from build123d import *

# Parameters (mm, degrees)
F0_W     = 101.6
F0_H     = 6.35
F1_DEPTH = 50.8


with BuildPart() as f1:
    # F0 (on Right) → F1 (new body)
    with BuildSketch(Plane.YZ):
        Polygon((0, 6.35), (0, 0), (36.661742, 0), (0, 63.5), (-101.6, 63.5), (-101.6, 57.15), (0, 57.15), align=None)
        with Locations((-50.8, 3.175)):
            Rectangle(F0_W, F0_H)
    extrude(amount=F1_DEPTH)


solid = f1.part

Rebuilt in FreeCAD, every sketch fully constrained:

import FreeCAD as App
import Part
import Sketcher
Q = App.Units.Quantity

doc = App.newDocument("Part")
body = doc.addObject("PartDesign::Body", "Body")

sketch1 = doc.addObject("Sketcher::SketchObject", "Sketch")
body.addObject(sketch1)
sketch1.AttachmentSupport = (doc.YZ_Plane, [""])
sketch1.MapMode = "FlatFace"
sketch1.addGeometry(Part.LineSegment(App.Vector(36.661742, 0, 0), App.Vector(0, 63.5, 0)), False)
sketch1.addGeometry(Part.LineSegment(App.Vector(0, 63.5, 0), App.Vector(-101.6, 63.5, 0)), False)
sketch1.addGeometry(Part.LineSegment(App.Vector(-101.6, 63.5, 0), App.Vector(-101.6, 57.15, 0)), False)
sketch1.addGeometry(Part.LineSegment(App.Vector(-101.6, 57.15, 0), App.Vector(0, 57.15, 0)), False)
sketch1.addGeometry(Part.LineSegment(App.Vector(0, 57.15, 0), App.Vector(0, 6.35, 0)), False)
sketch1.addGeometry(Part.LineSegment(App.Vector(0, 6.35, 0), App.Vector(-101.6, 6.35, 0)), False)
sketch1.addGeometry(Part.LineSegment(App.Vector(-101.6, 6.35, 0), App.Vector(-101.6, 0, 0)), False)
sketch1.addGeometry(Part.LineSegment(App.Vector(-101.6, 0, 0), App.Vector(36.661742, 0, 0)), False)
sketch1.addConstraint(Sketcher.Constraint("Coincident", 0, 2, 1, 1))
sketch1.addConstraint(Sketcher.Constraint("Coincident", 1, 2, 2, 1))
sketch1.addConstraint(Sketcher.Constraint("Coincident", 2, 2, 3, 1))
sketch1.addConstraint(Sketcher.Constraint("Coincident", 3, 2, 4, 1))
sketch1.addConstraint(Sketcher.Constraint("Coincident", 4, 2, 5, 1))
sketch1.addConstraint(Sketcher.Constraint("Coincident", 5, 2, 6, 1))
sketch1.addConstraint(Sketcher.Constraint("Coincident", 6, 2, 7, 1))
sketch1.addConstraint(Sketcher.Constraint("Coincident", 7, 2, 0, 1))
sketch1.addConstraint(Sketcher.Constraint("Horizontal", 1))
sketch1.addConstraint(Sketcher.Constraint("Vertical", 2))
sketch1.addConstraint(Sketcher.Constraint("Horizontal", 3))
sketch1.addConstraint(Sketcher.Constraint("Vertical", 4))
sketch1.addConstraint(Sketcher.Constraint("Horizontal", 5))
sketch1.addConstraint(Sketcher.Constraint("Vertical", 6))
sketch1.addConstraint(Sketcher.Constraint("Horizontal", 7))
sketch1.addConstraint(Sketcher.Constraint("PointOnObject", 0, 2, -2))
sketch1.addConstraint(Sketcher.Constraint("PointOnObject", 3, 2, -2))
sketch1.addConstraint(Sketcher.Constraint("PointOnObject", 6, 2, -1))
sketch1.addConstraint(Sketcher.Constraint("Vertical", 2, 2, 5, 2))
sketch1.addConstraint(Sketcher.Constraint("Equal", 2, 6))
sketch1.addConstraint(Sketcher.Constraint("DistanceX", 1, 2, 1, 1, Q("4 in")))
sketch1.addConstraint(Sketcher.Constraint("DistanceY", 4, 2, 4, 1, Q("2 in")))
sketch1.addConstraint(Sketcher.Constraint("Angle", 0, Q("120 deg")))
sketch1.addConstraint(Sketcher.Constraint("DistanceY", 2, 2, 2, 1, Q("0.25 in")))
pad1 = doc.addObject("PartDesign::Pad", "Pad")
body.addObject(pad1)
pad1.Profile = sketch1
pad1.Length = Q("2 in")

doc.recompute()
